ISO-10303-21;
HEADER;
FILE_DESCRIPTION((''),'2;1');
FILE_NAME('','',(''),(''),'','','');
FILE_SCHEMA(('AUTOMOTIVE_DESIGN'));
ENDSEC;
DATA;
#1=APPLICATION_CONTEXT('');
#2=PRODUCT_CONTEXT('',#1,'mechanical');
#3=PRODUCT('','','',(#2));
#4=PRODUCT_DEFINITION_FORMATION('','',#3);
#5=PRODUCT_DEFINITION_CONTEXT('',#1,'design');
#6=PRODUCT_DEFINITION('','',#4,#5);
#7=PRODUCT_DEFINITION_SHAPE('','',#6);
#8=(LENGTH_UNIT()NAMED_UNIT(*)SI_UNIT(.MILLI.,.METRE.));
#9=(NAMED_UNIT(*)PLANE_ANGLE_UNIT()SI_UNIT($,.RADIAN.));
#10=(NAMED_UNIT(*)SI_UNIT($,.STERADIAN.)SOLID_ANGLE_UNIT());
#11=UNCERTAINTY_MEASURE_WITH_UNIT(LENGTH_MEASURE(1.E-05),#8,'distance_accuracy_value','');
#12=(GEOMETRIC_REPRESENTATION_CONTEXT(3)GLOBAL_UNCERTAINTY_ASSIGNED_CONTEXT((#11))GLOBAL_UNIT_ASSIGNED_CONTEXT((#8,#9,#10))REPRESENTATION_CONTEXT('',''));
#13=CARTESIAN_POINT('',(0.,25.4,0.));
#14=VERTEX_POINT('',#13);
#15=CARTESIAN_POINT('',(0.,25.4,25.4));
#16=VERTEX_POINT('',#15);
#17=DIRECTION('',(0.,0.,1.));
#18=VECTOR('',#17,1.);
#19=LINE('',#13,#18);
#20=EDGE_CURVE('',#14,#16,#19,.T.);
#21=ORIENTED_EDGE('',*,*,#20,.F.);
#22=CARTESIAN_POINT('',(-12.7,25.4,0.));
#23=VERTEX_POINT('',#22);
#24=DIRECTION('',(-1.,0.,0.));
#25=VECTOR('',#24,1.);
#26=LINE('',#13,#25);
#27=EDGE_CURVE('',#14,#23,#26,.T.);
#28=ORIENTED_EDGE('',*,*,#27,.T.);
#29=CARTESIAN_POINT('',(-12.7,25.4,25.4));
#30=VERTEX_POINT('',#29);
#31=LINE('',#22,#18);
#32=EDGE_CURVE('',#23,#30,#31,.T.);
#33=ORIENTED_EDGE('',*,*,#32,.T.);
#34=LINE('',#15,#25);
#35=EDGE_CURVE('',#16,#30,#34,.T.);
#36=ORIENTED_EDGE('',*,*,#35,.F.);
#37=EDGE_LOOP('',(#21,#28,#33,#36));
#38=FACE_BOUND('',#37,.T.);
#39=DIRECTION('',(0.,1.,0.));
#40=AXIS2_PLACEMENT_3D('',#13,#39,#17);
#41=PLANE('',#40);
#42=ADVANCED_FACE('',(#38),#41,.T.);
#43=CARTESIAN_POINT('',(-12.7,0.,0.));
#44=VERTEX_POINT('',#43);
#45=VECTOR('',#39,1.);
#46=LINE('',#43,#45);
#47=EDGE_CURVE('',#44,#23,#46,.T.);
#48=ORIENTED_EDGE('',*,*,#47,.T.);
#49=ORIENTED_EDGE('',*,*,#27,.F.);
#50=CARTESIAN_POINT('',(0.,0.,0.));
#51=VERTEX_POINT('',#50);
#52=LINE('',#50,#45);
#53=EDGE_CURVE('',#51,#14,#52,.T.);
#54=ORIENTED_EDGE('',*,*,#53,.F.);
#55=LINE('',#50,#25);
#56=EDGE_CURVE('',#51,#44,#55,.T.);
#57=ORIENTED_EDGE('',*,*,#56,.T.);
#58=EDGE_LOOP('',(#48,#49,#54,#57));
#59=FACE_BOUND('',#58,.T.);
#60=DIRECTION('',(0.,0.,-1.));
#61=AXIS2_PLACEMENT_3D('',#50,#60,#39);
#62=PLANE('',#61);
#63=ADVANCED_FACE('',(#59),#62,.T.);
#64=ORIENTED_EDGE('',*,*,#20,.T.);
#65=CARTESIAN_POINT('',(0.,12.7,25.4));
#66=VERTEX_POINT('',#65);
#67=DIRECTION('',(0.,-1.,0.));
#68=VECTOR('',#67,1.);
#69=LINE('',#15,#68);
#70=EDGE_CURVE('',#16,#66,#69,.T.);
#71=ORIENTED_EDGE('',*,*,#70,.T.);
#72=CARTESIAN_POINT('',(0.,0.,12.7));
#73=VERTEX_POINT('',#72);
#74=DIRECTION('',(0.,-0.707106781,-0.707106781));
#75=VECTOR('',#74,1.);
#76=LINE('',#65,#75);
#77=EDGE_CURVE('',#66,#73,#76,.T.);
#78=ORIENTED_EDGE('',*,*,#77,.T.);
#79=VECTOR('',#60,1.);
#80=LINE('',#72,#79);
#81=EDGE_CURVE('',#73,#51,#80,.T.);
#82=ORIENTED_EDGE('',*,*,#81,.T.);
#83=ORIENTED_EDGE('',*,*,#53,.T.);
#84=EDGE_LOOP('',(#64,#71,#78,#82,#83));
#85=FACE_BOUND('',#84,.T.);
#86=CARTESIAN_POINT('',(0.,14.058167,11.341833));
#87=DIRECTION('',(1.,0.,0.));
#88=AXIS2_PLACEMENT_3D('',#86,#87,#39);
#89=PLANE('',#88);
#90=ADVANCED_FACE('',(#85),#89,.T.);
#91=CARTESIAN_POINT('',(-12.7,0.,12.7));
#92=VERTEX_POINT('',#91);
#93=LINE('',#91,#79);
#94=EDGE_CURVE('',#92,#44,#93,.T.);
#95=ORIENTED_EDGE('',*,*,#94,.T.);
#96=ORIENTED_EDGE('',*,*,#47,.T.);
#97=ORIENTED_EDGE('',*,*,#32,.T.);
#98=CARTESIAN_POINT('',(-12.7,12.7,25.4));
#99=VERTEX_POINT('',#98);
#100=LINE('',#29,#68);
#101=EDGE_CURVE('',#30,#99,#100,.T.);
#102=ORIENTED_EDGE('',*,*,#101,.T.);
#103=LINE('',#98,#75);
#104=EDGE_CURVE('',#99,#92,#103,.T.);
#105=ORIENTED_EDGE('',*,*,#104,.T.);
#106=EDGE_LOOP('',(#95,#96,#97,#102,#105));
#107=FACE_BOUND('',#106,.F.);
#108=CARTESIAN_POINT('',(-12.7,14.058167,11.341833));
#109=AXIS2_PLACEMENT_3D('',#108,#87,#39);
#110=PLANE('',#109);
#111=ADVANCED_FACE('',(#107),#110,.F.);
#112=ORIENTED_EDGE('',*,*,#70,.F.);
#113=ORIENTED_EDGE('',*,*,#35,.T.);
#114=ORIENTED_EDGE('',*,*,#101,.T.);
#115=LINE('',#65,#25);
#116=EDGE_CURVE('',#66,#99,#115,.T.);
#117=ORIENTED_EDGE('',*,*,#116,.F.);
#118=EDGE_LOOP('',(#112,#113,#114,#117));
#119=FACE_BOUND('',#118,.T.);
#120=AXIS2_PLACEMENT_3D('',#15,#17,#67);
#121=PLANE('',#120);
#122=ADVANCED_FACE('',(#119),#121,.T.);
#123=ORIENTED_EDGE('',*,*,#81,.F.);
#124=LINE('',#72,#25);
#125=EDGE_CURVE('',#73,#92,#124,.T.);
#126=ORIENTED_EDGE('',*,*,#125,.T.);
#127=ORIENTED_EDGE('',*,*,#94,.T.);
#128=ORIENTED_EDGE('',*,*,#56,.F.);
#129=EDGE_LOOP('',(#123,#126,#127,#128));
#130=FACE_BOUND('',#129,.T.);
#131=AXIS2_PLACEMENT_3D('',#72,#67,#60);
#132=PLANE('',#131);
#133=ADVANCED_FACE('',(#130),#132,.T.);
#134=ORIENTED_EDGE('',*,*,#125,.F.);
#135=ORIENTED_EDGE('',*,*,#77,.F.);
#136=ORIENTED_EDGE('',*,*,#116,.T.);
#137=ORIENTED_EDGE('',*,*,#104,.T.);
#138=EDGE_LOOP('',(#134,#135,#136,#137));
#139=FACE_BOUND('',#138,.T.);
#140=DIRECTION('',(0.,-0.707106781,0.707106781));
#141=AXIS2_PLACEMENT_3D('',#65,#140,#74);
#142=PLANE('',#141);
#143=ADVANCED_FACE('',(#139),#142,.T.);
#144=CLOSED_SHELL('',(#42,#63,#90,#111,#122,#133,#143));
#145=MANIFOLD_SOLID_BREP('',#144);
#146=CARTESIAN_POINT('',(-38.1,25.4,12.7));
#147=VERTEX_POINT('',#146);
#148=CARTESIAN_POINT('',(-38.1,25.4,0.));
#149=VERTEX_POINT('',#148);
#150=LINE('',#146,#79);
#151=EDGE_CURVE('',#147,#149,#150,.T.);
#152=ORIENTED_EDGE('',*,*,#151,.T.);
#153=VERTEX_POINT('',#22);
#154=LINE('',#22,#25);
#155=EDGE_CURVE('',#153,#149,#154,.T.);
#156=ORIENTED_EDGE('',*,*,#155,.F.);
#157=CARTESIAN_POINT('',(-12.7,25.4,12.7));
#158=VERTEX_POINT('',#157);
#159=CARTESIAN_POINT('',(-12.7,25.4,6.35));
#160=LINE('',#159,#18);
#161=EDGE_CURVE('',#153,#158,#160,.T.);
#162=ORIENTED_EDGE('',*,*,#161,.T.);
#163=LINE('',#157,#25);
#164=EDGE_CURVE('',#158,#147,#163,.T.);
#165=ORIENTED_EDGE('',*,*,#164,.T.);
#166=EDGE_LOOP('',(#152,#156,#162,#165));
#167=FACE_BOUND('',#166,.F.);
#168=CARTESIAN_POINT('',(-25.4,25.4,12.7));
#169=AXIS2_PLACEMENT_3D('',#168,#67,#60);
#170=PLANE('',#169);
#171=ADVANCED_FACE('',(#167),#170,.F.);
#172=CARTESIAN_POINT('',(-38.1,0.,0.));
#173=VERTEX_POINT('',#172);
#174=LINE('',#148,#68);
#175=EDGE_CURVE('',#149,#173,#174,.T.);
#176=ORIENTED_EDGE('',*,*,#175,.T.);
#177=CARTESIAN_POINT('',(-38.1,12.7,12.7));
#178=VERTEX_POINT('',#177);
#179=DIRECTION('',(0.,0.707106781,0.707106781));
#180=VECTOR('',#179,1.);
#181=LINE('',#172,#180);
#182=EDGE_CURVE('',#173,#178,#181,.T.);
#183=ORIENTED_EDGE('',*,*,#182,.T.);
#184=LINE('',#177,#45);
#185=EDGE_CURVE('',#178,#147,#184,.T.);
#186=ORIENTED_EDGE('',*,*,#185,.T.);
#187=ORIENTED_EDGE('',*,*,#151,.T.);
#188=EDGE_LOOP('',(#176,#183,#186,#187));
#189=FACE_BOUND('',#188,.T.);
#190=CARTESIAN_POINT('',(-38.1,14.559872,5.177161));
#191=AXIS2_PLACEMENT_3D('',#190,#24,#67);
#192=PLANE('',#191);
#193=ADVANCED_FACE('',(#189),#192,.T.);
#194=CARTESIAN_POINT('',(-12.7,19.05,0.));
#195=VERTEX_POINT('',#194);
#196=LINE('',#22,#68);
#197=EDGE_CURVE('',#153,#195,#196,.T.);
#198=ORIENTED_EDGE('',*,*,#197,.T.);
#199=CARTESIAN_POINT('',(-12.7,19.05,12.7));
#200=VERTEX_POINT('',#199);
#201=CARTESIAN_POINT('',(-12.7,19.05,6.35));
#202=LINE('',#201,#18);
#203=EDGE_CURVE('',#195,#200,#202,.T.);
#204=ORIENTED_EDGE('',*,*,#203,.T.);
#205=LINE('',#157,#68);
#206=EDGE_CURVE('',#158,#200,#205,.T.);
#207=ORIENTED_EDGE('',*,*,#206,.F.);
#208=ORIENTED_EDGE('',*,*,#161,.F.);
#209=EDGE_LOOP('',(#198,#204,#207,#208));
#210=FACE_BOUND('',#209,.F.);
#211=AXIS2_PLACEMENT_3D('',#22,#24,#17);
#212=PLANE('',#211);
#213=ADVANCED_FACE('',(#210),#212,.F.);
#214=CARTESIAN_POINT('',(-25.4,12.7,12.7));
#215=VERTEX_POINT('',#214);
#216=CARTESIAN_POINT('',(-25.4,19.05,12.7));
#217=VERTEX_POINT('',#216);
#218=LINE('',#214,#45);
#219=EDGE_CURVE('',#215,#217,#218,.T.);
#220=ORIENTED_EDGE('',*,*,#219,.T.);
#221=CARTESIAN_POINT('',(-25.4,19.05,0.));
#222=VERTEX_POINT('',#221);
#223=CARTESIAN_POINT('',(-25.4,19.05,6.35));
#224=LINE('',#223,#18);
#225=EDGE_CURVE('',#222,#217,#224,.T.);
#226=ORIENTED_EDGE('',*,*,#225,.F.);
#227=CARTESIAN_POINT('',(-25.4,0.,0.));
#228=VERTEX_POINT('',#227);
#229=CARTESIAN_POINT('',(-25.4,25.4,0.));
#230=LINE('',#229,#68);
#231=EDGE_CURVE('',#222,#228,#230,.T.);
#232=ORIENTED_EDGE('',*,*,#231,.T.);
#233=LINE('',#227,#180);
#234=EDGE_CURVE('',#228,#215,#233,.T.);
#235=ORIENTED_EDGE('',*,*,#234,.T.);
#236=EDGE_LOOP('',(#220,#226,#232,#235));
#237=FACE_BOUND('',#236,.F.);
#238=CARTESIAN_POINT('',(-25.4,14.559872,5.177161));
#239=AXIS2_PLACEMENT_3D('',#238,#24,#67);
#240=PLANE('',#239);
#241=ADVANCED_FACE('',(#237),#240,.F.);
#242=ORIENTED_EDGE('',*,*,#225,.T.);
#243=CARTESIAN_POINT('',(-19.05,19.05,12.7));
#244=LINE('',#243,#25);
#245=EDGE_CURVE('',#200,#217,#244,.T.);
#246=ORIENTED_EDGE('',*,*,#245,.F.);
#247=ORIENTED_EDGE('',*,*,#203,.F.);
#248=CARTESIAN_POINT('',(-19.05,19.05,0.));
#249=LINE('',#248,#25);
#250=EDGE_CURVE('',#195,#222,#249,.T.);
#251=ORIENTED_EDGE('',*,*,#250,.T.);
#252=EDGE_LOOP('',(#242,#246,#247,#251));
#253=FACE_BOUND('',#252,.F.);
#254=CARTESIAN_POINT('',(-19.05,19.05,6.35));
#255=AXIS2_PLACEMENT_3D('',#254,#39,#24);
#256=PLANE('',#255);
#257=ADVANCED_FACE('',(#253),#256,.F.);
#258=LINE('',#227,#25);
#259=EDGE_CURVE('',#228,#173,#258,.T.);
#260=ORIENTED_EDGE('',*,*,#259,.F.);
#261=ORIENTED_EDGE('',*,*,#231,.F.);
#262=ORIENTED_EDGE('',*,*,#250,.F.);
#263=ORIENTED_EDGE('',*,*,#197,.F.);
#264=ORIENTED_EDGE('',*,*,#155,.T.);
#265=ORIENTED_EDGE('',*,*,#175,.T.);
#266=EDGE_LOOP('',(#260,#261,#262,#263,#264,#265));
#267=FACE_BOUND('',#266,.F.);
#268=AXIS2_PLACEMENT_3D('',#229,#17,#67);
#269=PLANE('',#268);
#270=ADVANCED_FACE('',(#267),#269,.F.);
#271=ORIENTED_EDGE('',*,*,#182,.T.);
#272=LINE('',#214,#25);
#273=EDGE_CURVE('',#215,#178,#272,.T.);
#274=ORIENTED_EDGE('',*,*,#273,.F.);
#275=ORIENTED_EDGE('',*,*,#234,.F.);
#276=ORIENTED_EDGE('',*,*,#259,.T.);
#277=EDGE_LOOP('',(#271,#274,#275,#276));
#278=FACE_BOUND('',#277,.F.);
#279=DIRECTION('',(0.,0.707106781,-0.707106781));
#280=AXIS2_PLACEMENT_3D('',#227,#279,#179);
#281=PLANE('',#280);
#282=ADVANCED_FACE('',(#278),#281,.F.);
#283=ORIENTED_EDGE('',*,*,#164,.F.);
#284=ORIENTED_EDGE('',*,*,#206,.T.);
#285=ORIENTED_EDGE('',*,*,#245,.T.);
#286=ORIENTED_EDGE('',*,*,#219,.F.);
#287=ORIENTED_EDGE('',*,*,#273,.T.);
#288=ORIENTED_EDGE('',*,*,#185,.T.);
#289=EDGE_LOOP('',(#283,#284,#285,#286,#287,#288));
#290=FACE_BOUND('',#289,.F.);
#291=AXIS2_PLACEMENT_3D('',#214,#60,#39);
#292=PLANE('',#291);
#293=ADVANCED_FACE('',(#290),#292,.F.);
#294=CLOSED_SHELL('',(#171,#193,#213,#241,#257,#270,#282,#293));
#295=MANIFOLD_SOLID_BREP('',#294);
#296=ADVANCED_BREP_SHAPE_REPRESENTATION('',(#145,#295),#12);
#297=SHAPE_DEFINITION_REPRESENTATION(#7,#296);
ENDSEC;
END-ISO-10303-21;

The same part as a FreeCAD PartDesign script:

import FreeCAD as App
import Part
import Sketcher

V = App.Vector
Q = App.Units.Quantity

doc = App.newDocument("Part")
body = doc.addObject("PartDesign::Body", "Body")

# Sketch on YZ plane
sketch1 = doc.addObject("Sketcher::SketchObject", "Sketch")
body.addObject(sketch1)
sketch1.AttachmentSupport = (doc.YZ_Plane, [""])
sketch1.MapMode = "FlatFace"
sketch1.addGeometry([
    Part.LineSegment(V(0, 13, 0), V(0, 0, 0)),  # 0
    Part.LineSegment(V(0, 0, 0), V(25, 0, 0)),  # 1
    Part.LineSegment(V(25, 0, 0), V(25, 25, 0)),  # 2
    Part.LineSegment(V(25, 25, 0), V(13, 25, 0)),  # 3
    Part.LineSegment(V(13, 25, 0), V(0, 13, 0)),  # 4
], False)
sketch1.addConstraint([
    Sketcher.Constraint("Coincident", 0, 2, 1, 1),
    Sketcher.Constraint("Coincident", 1, 2, 2, 1),
    Sketcher.Constraint("Coincident", 2, 2, 3, 1),
    Sketcher.Constraint("Coincident", 3, 2, 4, 1),
    Sketcher.Constraint("Coincident", 4, 2, 0, 1),
    Sketcher.Constraint("Vertical", 0),
    Sketcher.Constraint("Horizontal", 1),
    Sketcher.Constraint("Vertical", 2),
    Sketcher.Constraint("Horizontal", 3),
    Sketcher.Constraint("Coincident", 0, 2, -1, 1),
    Sketcher.Constraint("Equal", 3, 0),
    Sketcher.Constraint("Equal", 1, 2),
    Sketcher.Constraint("DistanceX", 1, 1, 1, 2, Q("1 in")),
    Sketcher.Constraint("DistanceX", 3, 2, 3, 1, Q("0.5 in")),
])
pad1 = doc.addObject("PartDesign::Pad", "Pad")
body.addObject(pad1)
pad1.Profile = sketch1
pad1.Length = Q("0.5 in")
pad1.Reversed = True
body2 = doc.addObject("PartDesign::Body", "Body001")

# Sketch on XZ plane
sketch2 = doc.addObject("Sketcher::SketchObject", "Sketch001")
body2.addObject(sketch2)
sketch2.AttachmentSupport = (doc.getObject("XZ_Plane001"), [""])
sketch2.MapMode = "FlatFace"
sketch2.AttachmentOffset = App.Placement(V(0, 0, -1 * 25.4), App.Rotation())
sketch2.addGeometry([
    Part.LineSegment(V(-13, 13, 0), V(-13, 0, 0)),
    Part.LineSegment(V(-13, 0, 0), V(-25, 0, 0)),
    Part.LineSegment(V(-25, 0, 0), V(-25, 13, 0)),
    Part.LineSegment(V(-25, 13, 0), V(-13, 13, 0)),
], False)
sketch2.addConstraint([
    Sketcher.Constraint("Coincident", 0, 2, 1, 1),
    Sketcher.Constraint("Coincident", 1, 2, 2, 1),
    Sketcher.Constraint("Coincident", 2, 2, 3, 1),
    Sketcher.Constraint("Coincident", 3, 2, 0, 1),
    Sketcher.Constraint("Vertical", 0),
    Sketcher.Constraint("Horizontal", 1),
    Sketcher.Constraint("Vertical", 2),
    Sketcher.Constraint("Horizontal", 3),
    Sketcher.Constraint("PointOnObject", 0, 2, -1),
    Sketcher.Constraint("Equal", 3, 0),
    Sketcher.Constraint("DistanceX", 1, 2, 1, 1, Q("0.5 in")),
    Sketcher.Constraint("DistanceX", 1, 2, -1, 1, Q("1 in")),
])
pad2 = doc.addObject("PartDesign::Pad", "Pad001")
body2.addObject(pad2)
pad2.Profile = sketch2
pad2.Length = Q("0.25 in")

# Sketch on YZ plane
sketch3 = doc.addObject("Sketcher::SketchObject", "Sketch002")
body2.addObject(sketch3)
sketch3.AttachmentSupport = (doc.getObject("YZ_Plane001"), [""])
sketch3.MapMode = "FlatFace"
sketch3.AttachmentOffset = App.Placement(V(0, 0, -1 * 25.4), App.Rotation())
sketch3.addGeometry([
    Part.LineSegment(V(13, 13, 0), V(25, 13, 0)),
    Part.LineSegment(V(25, 13, 0), V(25, 0, 0)),
    Part.LineSegment(V(25, 0, 0), V(0, 0, 0)),
    Part.LineSegment(V(0, 0, 0), V(13, 13, 0)),
], False)
sketch3.addConstraint([
    Sketcher.Constraint("Coincident", 0, 2, 1, 1),
    Sketcher.Constraint("Coincident", 1, 2, 2, 1),
    Sketcher.Constraint("Coincident", 2, 2, 3, 1),
    Sketcher.Constraint("Coincident", 3, 2, 0, 1),
    Sketcher.Constraint("Horizontal", 0),
    Sketcher.Constraint("Vertical", 1),
    Sketcher.Constraint("Horizontal", 2),
    Sketcher.Constraint("Coincident", 2, 2, -1, 1),
    Sketcher.Constraint("Equal", 0, 1),
    Sketcher.Constraint("DistanceX", 2, 2, 2, 1, Q("1 in")),
    Sketcher.Constraint("DistanceX", 0, 1, 0, 2, Q("0.5 in")),
])
pad3 = doc.addObject("PartDesign::Pad", "Pad002")
body2.addObject(pad3)
pad3.Profile = sketch3
pad3.Length = Q("0.5 in")
pad3.Reversed = True

doc.recompute()
